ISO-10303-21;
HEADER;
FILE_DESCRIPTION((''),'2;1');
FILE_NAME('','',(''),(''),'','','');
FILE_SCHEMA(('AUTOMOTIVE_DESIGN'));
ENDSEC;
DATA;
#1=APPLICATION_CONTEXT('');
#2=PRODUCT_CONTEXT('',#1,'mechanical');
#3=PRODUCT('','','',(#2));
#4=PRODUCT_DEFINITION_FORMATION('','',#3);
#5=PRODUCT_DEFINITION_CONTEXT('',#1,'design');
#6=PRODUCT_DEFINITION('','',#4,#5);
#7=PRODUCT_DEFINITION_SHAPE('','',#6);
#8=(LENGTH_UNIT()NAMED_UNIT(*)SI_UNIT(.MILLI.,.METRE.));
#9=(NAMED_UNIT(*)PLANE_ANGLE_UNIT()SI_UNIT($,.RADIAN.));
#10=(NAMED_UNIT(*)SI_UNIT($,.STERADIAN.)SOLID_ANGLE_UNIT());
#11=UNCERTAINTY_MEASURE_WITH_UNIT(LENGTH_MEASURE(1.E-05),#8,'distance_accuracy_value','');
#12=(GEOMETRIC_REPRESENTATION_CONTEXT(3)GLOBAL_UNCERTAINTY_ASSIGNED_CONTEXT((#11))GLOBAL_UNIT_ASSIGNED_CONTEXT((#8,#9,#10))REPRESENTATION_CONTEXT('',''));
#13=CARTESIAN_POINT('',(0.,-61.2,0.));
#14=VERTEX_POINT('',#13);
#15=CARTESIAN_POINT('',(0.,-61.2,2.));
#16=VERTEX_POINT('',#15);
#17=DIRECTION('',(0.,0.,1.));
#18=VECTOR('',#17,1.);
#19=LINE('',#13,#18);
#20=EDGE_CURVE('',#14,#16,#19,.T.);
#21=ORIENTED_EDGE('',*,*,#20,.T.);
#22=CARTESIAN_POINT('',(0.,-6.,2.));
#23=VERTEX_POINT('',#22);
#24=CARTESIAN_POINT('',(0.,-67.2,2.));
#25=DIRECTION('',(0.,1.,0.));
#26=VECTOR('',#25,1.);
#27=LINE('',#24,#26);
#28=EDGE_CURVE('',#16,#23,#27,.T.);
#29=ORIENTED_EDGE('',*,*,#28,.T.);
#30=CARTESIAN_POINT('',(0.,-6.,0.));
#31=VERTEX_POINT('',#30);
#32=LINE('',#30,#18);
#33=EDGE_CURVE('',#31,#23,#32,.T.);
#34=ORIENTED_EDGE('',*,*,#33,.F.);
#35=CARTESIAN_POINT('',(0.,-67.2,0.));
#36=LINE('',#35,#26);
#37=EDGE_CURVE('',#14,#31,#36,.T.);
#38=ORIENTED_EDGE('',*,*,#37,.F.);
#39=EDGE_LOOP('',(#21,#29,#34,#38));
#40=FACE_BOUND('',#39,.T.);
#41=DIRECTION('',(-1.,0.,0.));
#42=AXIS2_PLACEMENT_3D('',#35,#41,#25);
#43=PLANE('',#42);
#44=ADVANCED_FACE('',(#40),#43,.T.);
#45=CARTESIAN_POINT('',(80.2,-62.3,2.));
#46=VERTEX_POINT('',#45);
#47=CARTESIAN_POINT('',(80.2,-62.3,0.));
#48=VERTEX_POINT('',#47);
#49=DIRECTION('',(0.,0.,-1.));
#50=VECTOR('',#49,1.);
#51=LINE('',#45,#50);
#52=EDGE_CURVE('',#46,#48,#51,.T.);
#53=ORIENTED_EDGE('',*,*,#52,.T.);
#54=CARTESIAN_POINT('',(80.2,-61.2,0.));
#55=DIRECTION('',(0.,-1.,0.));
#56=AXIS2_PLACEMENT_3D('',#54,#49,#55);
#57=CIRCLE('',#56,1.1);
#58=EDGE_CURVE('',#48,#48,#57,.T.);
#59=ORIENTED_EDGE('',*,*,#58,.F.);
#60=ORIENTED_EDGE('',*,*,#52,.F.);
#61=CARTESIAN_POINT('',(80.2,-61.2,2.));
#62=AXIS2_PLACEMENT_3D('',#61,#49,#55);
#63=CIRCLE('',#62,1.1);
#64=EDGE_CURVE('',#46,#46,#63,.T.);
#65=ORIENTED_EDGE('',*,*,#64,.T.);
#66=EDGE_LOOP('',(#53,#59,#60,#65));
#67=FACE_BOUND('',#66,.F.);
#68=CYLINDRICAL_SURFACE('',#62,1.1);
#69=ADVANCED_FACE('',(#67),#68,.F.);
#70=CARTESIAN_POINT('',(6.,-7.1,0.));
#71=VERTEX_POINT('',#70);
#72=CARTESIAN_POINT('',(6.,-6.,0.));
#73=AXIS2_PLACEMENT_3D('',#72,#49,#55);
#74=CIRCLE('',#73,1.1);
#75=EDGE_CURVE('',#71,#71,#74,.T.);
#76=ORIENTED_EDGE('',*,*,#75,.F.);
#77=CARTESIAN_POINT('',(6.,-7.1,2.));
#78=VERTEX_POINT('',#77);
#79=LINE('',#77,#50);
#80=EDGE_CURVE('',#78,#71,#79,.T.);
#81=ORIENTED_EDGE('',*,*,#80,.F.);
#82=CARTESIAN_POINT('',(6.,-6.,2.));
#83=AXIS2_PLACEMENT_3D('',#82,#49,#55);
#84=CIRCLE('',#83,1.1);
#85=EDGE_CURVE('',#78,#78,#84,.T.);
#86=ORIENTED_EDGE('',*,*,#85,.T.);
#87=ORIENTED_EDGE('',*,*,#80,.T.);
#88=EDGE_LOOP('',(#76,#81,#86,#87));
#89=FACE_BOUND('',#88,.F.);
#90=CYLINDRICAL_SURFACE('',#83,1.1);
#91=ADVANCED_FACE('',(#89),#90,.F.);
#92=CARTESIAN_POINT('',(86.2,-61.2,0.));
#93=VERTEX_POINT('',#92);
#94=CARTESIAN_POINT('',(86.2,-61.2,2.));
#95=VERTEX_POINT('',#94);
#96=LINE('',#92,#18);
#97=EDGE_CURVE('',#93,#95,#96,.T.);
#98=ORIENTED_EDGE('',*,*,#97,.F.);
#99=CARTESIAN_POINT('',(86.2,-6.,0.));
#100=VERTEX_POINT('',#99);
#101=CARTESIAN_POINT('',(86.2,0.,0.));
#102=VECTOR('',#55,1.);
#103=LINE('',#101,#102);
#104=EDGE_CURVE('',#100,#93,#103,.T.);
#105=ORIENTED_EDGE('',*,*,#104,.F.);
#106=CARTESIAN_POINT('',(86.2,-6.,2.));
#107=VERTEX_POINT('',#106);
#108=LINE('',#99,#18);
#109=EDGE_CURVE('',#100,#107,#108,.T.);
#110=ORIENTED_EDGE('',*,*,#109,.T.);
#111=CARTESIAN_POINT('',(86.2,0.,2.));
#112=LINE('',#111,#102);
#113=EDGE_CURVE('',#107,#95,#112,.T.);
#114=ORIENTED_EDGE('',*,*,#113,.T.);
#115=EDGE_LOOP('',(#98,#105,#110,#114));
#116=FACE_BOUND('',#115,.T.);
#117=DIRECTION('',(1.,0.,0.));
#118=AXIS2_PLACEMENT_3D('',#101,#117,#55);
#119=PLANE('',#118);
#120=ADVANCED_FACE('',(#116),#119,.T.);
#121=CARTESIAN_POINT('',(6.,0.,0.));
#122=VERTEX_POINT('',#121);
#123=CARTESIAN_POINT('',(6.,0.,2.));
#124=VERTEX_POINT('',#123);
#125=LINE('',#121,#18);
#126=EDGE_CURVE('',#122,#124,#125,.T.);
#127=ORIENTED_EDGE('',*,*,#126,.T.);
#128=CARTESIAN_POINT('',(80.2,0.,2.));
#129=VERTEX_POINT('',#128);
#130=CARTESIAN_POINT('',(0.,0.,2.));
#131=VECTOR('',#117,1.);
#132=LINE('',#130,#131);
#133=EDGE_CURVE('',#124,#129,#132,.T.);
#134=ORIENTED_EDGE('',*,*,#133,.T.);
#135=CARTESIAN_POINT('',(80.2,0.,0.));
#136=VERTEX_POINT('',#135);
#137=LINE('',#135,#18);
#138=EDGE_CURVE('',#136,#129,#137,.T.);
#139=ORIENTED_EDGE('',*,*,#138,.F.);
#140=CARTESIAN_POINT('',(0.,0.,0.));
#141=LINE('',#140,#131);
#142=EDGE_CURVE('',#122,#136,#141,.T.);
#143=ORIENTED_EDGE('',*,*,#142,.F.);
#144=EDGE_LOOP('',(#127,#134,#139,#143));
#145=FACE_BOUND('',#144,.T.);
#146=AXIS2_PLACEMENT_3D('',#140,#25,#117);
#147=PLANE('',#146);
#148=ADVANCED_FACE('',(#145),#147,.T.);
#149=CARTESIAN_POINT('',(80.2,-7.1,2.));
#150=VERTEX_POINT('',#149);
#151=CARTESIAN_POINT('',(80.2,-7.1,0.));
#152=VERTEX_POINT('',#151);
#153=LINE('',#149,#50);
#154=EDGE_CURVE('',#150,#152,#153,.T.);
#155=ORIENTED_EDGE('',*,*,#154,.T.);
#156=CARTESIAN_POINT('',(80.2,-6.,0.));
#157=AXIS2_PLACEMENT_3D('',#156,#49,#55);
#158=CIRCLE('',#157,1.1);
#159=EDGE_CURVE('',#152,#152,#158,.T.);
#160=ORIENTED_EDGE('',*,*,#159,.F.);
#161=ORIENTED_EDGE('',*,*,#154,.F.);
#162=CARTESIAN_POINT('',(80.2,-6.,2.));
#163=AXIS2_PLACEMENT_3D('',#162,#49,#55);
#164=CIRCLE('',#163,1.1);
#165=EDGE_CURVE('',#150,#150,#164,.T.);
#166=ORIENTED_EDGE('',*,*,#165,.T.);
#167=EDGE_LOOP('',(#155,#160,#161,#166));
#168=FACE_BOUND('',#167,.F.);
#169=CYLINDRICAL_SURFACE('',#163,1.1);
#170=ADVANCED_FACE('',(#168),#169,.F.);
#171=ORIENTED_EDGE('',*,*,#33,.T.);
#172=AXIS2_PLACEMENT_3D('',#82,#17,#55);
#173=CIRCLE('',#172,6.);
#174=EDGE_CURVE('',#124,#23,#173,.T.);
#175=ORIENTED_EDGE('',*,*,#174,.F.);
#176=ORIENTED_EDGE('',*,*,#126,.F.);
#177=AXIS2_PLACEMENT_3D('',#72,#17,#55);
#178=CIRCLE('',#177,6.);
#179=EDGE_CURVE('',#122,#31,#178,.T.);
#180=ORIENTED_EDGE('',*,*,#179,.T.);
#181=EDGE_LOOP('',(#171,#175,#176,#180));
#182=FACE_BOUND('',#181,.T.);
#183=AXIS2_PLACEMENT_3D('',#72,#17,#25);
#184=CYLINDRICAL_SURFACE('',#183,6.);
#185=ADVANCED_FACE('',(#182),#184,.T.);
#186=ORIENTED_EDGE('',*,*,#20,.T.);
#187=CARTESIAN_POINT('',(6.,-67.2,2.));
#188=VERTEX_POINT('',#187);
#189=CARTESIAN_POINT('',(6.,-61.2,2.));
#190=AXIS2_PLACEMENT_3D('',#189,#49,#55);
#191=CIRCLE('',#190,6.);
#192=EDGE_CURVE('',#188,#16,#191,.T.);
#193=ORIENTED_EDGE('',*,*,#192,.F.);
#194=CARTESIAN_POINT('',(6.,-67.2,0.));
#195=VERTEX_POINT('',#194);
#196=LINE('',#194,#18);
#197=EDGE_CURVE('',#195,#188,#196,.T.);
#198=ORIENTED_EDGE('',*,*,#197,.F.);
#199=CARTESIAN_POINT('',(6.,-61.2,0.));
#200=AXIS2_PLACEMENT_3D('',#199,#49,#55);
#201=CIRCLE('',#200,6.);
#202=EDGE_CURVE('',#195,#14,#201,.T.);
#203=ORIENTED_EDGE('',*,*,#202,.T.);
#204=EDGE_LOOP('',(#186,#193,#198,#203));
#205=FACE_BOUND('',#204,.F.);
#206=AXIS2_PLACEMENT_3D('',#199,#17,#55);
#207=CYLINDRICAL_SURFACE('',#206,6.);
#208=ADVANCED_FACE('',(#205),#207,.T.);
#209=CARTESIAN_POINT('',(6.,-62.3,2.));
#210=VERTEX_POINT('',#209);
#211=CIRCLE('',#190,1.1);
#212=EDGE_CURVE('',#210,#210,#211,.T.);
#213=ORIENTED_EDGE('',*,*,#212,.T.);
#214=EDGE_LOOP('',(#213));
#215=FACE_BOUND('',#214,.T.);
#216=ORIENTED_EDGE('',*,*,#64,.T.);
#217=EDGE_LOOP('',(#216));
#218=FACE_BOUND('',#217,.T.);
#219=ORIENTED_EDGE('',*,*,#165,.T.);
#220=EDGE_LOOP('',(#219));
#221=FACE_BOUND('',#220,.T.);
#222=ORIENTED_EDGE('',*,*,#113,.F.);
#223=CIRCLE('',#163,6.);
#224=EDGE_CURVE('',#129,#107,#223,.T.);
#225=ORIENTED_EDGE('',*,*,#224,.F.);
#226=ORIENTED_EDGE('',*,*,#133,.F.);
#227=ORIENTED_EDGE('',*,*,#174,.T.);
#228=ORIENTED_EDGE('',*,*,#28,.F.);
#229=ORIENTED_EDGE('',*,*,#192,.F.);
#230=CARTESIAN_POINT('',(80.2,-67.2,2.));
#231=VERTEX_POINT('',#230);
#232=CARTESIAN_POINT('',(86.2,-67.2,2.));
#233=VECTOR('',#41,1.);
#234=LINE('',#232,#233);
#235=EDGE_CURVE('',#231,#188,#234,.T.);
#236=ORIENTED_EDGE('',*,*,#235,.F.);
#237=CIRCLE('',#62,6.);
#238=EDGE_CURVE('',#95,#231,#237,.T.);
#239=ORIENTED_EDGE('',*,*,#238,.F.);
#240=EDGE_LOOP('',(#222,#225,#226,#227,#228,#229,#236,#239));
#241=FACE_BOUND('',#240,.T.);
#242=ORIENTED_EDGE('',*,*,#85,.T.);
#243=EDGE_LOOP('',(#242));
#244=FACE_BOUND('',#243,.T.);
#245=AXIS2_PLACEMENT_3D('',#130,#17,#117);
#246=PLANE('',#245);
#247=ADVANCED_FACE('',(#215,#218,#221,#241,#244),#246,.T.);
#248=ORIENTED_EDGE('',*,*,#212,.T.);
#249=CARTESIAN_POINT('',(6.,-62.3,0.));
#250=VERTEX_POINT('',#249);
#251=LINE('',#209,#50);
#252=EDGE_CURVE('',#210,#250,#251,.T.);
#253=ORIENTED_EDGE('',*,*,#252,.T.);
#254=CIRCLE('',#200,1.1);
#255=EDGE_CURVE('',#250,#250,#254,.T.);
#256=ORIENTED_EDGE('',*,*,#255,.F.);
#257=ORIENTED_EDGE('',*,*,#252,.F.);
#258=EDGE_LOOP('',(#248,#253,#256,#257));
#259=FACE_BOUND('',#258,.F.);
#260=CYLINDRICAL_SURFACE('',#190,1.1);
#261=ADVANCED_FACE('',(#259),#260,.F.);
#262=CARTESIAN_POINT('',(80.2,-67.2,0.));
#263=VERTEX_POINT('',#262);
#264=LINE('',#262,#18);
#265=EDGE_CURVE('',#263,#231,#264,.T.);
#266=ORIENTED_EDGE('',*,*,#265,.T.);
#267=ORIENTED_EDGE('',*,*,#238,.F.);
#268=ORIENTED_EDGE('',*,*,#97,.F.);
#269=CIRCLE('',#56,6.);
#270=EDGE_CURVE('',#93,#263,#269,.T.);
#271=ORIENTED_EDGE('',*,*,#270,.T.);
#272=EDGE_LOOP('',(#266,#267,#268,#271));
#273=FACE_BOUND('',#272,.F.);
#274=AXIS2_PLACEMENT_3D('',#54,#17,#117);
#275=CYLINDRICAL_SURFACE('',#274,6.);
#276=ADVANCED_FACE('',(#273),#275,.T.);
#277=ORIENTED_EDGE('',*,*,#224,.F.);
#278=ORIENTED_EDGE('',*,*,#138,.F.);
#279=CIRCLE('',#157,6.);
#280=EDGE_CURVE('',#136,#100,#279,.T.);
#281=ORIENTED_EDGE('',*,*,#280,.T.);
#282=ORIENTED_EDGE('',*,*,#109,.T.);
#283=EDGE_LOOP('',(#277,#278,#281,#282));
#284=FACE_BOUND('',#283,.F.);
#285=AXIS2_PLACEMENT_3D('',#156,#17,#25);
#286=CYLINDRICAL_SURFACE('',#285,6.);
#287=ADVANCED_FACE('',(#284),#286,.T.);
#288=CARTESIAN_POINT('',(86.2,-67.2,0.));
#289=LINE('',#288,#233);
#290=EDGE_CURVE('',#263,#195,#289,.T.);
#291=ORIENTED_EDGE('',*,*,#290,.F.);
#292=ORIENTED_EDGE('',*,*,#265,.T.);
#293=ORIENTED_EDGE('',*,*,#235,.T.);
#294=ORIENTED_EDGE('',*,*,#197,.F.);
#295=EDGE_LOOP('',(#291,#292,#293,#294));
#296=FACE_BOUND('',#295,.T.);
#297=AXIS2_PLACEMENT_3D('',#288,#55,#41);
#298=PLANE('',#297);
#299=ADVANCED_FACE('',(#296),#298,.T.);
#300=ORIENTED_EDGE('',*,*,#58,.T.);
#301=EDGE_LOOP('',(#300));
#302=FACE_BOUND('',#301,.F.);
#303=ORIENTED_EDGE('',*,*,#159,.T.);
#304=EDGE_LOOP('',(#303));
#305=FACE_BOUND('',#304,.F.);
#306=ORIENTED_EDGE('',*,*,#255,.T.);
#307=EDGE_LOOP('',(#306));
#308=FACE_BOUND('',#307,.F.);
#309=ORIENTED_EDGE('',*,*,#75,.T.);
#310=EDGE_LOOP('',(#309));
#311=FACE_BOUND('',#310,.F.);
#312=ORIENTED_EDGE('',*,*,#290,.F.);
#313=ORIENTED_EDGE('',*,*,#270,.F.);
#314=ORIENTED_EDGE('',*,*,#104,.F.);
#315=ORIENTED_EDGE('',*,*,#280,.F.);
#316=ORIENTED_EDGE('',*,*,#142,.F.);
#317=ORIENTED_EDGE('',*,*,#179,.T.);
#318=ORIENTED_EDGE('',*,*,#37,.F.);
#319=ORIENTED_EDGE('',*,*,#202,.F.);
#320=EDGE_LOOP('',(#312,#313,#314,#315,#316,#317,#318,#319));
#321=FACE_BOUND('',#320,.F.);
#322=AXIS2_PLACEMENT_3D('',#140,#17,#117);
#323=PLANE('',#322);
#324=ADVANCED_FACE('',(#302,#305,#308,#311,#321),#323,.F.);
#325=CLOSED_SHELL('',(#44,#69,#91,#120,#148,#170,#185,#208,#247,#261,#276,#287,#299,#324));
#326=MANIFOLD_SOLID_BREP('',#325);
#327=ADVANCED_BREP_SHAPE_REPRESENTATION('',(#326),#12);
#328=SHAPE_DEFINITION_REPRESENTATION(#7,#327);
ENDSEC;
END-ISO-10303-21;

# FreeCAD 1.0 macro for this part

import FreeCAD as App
import Part
import Sketcher


def edges_at(feature, points):
    """Names of the edges that pass closest to the given points."""
    edges = feature.Shape.Edges
    near = lambda p: min(range(len(edges)), key=lambda i: edges[i].distToShape(Part.Vertex(*p))[0])
    return sorted({f"Edge{near(p) + 1}" for p in points})


def add_polygon(sketch, points):
    """Adds a closed chain of lines whose ends are joined by coincident constraints."""
    first, n = sketch.GeometryCount, len(points)
    for a, b in zip(points, points[1:] + points[:1]):
        sketch.addGeometry(Part.LineSegment(App.Vector(*a, 0), App.Vector(*b, 0)), False)
    for i in range(n):
        sketch.addConstraint(Sketcher.Constraint("Coincident", first + i, 2, first + (i + 1) % n, 1))

doc = App.newDocument("Part")
params = doc.addObject("Spreadsheet::Sheet", "Params")
for row, (alias, value) in enumerate([
    ("sketch1_width", "86.2 mm"),
    ("sketch1_height", "67.2 mm"),
    ("pad1_length", "2 mm"),
    ("fillet_radius", "6 mm"),
    ("sketch2_diameter", "2.2 mm"),
    ("hole_diameter", "2.2 mm"),
    ("hole_depth", "2.2 mm"),
], start=1):
    params.set(f"A{row}", alias)
    params.set(f"B{row}", "=" + value)
    params.setAlias(f"B{row}", alias)

body = doc.addObject("PartDesign::Body", "Body")

# Sketch on XY plane
sketch1 = doc.addObject("Sketcher::SketchObject", "Sketch")
body.addObject(sketch1)
sketch1.AttachmentSupport = (doc.XY_Plane, [""])
sketch1.MapMode = "FlatFace"
add_polygon(sketch1, [(86, 0), (0, 0), (0, -67), (86, -67)])  # lines 0-3
sketch1.addConstraint([
    Sketcher.Constraint("Horizontal", 0),
    Sketcher.Constraint("Vertical", 1),
    Sketcher.Constraint("Horizontal", 2),
    Sketcher.Constraint("Vertical", 3),
    Sketcher.Constraint("Coincident", 0, 2, -1, 1),
    Sketcher.Constraint("DistanceX", 0, 2, 0, 1, 86.2),
    Sketcher.Constraint("DistanceY", 1, 2, 1, 1, 67.2),
])
sketch1.setExpression("Constraints[9]", "Params.sketch1_width")
sketch1.setExpression("Constraints[10]", "Params.sketch1_height")
pad1 = doc.addObject("PartDesign::Pad", "Pad")
body.addObject(pad1)
pad1.Profile = sketch1
pad1.setExpression("Length", "Params.pad1_length")
doc.recompute()

fillet = doc.addObject("PartDesign::Fillet", "Fillet")
body.addObject(fillet)
fillet.Base = (pad1, edges_at(pad1, [
    (0, 0, 1),
    (0, -67.2, 1),
    (86.2, -67.2, 1),
    (86.2, 0, 1),
]))
fillet.setExpression("Radius", "Params.fillet_radius")

# Sketch on XY plane
sketch2 = doc.addObject("Sketcher::SketchObject", "Sketch001")
body.addObject(sketch2)
sketch2.AttachmentSupport = (doc.XY_Plane, [""])
sketch2.MapMode = "FlatFace"
sketch2.AttachmentOffset = App.Placement(App.Vector(0, 0, 2), App.Rotation())
sketch2.addGeometry([
    Part.Circle(App.Vector(80.2, -61.2, 0), App.Vector(0, 0, 1), 1.1),
    Part.Circle(App.Vector(6, -61.2, 0), App.Vector(0, 0, 1), 1.1),
    Part.Circle(App.Vector(6, -6, 0), App.Vector(0, 0, 1), 1.1),
    Part.Circle(App.Vector(80.2, -6, 0), App.Vector(0, 0, 1), 1.1),
], False)
sketch2.addConstraint([
    Sketcher.Constraint("Equal", 0, 1),
    Sketcher.Constraint("Equal", 1, 2),
    Sketcher.Constraint("Equal", 2, 3),
    Sketcher.Constraint("Horizontal", 0, 3, 1, 3),
    Sketcher.Constraint("Horizontal", 2, 3, 3, 3),
    Sketcher.Constraint("Vertical", 1, 3, 2, 3),
    Sketcher.Constraint("Vertical", 0, 3, 3, 3),
    Sketcher.Constraint("Diameter", 0, 2.2),
    Sketcher.Constraint("DistanceX", -1, 1, 1, 3, 6.0),
    Sketcher.Constraint("DistanceY", 2, 3, -1, 1, 6.0),
    Sketcher.Constraint("DistanceX", -1, 1, 0, 3, 80.2),
    Sketcher.Constraint("DistanceY", 0, 3, -1, 1, 61.2),
])
sketch2.setExpression("Constraints[7]", "Params.sketch2_diameter")
doc.recompute()
hole = doc.addObject("PartDesign::Hole", "Hole")
body.addObject(hole)
hole.Profile = sketch2
hole.ThreadType = "None"
hole.setExpression("Diameter", "Params.hole_diameter")
hole.DepthType = "Dimension"
hole.setExpression("Depth", "Params.hole_depth")
hole.DrillPoint = "Angled"
hole.DrillPointAngle = 118

doc.recompute()
